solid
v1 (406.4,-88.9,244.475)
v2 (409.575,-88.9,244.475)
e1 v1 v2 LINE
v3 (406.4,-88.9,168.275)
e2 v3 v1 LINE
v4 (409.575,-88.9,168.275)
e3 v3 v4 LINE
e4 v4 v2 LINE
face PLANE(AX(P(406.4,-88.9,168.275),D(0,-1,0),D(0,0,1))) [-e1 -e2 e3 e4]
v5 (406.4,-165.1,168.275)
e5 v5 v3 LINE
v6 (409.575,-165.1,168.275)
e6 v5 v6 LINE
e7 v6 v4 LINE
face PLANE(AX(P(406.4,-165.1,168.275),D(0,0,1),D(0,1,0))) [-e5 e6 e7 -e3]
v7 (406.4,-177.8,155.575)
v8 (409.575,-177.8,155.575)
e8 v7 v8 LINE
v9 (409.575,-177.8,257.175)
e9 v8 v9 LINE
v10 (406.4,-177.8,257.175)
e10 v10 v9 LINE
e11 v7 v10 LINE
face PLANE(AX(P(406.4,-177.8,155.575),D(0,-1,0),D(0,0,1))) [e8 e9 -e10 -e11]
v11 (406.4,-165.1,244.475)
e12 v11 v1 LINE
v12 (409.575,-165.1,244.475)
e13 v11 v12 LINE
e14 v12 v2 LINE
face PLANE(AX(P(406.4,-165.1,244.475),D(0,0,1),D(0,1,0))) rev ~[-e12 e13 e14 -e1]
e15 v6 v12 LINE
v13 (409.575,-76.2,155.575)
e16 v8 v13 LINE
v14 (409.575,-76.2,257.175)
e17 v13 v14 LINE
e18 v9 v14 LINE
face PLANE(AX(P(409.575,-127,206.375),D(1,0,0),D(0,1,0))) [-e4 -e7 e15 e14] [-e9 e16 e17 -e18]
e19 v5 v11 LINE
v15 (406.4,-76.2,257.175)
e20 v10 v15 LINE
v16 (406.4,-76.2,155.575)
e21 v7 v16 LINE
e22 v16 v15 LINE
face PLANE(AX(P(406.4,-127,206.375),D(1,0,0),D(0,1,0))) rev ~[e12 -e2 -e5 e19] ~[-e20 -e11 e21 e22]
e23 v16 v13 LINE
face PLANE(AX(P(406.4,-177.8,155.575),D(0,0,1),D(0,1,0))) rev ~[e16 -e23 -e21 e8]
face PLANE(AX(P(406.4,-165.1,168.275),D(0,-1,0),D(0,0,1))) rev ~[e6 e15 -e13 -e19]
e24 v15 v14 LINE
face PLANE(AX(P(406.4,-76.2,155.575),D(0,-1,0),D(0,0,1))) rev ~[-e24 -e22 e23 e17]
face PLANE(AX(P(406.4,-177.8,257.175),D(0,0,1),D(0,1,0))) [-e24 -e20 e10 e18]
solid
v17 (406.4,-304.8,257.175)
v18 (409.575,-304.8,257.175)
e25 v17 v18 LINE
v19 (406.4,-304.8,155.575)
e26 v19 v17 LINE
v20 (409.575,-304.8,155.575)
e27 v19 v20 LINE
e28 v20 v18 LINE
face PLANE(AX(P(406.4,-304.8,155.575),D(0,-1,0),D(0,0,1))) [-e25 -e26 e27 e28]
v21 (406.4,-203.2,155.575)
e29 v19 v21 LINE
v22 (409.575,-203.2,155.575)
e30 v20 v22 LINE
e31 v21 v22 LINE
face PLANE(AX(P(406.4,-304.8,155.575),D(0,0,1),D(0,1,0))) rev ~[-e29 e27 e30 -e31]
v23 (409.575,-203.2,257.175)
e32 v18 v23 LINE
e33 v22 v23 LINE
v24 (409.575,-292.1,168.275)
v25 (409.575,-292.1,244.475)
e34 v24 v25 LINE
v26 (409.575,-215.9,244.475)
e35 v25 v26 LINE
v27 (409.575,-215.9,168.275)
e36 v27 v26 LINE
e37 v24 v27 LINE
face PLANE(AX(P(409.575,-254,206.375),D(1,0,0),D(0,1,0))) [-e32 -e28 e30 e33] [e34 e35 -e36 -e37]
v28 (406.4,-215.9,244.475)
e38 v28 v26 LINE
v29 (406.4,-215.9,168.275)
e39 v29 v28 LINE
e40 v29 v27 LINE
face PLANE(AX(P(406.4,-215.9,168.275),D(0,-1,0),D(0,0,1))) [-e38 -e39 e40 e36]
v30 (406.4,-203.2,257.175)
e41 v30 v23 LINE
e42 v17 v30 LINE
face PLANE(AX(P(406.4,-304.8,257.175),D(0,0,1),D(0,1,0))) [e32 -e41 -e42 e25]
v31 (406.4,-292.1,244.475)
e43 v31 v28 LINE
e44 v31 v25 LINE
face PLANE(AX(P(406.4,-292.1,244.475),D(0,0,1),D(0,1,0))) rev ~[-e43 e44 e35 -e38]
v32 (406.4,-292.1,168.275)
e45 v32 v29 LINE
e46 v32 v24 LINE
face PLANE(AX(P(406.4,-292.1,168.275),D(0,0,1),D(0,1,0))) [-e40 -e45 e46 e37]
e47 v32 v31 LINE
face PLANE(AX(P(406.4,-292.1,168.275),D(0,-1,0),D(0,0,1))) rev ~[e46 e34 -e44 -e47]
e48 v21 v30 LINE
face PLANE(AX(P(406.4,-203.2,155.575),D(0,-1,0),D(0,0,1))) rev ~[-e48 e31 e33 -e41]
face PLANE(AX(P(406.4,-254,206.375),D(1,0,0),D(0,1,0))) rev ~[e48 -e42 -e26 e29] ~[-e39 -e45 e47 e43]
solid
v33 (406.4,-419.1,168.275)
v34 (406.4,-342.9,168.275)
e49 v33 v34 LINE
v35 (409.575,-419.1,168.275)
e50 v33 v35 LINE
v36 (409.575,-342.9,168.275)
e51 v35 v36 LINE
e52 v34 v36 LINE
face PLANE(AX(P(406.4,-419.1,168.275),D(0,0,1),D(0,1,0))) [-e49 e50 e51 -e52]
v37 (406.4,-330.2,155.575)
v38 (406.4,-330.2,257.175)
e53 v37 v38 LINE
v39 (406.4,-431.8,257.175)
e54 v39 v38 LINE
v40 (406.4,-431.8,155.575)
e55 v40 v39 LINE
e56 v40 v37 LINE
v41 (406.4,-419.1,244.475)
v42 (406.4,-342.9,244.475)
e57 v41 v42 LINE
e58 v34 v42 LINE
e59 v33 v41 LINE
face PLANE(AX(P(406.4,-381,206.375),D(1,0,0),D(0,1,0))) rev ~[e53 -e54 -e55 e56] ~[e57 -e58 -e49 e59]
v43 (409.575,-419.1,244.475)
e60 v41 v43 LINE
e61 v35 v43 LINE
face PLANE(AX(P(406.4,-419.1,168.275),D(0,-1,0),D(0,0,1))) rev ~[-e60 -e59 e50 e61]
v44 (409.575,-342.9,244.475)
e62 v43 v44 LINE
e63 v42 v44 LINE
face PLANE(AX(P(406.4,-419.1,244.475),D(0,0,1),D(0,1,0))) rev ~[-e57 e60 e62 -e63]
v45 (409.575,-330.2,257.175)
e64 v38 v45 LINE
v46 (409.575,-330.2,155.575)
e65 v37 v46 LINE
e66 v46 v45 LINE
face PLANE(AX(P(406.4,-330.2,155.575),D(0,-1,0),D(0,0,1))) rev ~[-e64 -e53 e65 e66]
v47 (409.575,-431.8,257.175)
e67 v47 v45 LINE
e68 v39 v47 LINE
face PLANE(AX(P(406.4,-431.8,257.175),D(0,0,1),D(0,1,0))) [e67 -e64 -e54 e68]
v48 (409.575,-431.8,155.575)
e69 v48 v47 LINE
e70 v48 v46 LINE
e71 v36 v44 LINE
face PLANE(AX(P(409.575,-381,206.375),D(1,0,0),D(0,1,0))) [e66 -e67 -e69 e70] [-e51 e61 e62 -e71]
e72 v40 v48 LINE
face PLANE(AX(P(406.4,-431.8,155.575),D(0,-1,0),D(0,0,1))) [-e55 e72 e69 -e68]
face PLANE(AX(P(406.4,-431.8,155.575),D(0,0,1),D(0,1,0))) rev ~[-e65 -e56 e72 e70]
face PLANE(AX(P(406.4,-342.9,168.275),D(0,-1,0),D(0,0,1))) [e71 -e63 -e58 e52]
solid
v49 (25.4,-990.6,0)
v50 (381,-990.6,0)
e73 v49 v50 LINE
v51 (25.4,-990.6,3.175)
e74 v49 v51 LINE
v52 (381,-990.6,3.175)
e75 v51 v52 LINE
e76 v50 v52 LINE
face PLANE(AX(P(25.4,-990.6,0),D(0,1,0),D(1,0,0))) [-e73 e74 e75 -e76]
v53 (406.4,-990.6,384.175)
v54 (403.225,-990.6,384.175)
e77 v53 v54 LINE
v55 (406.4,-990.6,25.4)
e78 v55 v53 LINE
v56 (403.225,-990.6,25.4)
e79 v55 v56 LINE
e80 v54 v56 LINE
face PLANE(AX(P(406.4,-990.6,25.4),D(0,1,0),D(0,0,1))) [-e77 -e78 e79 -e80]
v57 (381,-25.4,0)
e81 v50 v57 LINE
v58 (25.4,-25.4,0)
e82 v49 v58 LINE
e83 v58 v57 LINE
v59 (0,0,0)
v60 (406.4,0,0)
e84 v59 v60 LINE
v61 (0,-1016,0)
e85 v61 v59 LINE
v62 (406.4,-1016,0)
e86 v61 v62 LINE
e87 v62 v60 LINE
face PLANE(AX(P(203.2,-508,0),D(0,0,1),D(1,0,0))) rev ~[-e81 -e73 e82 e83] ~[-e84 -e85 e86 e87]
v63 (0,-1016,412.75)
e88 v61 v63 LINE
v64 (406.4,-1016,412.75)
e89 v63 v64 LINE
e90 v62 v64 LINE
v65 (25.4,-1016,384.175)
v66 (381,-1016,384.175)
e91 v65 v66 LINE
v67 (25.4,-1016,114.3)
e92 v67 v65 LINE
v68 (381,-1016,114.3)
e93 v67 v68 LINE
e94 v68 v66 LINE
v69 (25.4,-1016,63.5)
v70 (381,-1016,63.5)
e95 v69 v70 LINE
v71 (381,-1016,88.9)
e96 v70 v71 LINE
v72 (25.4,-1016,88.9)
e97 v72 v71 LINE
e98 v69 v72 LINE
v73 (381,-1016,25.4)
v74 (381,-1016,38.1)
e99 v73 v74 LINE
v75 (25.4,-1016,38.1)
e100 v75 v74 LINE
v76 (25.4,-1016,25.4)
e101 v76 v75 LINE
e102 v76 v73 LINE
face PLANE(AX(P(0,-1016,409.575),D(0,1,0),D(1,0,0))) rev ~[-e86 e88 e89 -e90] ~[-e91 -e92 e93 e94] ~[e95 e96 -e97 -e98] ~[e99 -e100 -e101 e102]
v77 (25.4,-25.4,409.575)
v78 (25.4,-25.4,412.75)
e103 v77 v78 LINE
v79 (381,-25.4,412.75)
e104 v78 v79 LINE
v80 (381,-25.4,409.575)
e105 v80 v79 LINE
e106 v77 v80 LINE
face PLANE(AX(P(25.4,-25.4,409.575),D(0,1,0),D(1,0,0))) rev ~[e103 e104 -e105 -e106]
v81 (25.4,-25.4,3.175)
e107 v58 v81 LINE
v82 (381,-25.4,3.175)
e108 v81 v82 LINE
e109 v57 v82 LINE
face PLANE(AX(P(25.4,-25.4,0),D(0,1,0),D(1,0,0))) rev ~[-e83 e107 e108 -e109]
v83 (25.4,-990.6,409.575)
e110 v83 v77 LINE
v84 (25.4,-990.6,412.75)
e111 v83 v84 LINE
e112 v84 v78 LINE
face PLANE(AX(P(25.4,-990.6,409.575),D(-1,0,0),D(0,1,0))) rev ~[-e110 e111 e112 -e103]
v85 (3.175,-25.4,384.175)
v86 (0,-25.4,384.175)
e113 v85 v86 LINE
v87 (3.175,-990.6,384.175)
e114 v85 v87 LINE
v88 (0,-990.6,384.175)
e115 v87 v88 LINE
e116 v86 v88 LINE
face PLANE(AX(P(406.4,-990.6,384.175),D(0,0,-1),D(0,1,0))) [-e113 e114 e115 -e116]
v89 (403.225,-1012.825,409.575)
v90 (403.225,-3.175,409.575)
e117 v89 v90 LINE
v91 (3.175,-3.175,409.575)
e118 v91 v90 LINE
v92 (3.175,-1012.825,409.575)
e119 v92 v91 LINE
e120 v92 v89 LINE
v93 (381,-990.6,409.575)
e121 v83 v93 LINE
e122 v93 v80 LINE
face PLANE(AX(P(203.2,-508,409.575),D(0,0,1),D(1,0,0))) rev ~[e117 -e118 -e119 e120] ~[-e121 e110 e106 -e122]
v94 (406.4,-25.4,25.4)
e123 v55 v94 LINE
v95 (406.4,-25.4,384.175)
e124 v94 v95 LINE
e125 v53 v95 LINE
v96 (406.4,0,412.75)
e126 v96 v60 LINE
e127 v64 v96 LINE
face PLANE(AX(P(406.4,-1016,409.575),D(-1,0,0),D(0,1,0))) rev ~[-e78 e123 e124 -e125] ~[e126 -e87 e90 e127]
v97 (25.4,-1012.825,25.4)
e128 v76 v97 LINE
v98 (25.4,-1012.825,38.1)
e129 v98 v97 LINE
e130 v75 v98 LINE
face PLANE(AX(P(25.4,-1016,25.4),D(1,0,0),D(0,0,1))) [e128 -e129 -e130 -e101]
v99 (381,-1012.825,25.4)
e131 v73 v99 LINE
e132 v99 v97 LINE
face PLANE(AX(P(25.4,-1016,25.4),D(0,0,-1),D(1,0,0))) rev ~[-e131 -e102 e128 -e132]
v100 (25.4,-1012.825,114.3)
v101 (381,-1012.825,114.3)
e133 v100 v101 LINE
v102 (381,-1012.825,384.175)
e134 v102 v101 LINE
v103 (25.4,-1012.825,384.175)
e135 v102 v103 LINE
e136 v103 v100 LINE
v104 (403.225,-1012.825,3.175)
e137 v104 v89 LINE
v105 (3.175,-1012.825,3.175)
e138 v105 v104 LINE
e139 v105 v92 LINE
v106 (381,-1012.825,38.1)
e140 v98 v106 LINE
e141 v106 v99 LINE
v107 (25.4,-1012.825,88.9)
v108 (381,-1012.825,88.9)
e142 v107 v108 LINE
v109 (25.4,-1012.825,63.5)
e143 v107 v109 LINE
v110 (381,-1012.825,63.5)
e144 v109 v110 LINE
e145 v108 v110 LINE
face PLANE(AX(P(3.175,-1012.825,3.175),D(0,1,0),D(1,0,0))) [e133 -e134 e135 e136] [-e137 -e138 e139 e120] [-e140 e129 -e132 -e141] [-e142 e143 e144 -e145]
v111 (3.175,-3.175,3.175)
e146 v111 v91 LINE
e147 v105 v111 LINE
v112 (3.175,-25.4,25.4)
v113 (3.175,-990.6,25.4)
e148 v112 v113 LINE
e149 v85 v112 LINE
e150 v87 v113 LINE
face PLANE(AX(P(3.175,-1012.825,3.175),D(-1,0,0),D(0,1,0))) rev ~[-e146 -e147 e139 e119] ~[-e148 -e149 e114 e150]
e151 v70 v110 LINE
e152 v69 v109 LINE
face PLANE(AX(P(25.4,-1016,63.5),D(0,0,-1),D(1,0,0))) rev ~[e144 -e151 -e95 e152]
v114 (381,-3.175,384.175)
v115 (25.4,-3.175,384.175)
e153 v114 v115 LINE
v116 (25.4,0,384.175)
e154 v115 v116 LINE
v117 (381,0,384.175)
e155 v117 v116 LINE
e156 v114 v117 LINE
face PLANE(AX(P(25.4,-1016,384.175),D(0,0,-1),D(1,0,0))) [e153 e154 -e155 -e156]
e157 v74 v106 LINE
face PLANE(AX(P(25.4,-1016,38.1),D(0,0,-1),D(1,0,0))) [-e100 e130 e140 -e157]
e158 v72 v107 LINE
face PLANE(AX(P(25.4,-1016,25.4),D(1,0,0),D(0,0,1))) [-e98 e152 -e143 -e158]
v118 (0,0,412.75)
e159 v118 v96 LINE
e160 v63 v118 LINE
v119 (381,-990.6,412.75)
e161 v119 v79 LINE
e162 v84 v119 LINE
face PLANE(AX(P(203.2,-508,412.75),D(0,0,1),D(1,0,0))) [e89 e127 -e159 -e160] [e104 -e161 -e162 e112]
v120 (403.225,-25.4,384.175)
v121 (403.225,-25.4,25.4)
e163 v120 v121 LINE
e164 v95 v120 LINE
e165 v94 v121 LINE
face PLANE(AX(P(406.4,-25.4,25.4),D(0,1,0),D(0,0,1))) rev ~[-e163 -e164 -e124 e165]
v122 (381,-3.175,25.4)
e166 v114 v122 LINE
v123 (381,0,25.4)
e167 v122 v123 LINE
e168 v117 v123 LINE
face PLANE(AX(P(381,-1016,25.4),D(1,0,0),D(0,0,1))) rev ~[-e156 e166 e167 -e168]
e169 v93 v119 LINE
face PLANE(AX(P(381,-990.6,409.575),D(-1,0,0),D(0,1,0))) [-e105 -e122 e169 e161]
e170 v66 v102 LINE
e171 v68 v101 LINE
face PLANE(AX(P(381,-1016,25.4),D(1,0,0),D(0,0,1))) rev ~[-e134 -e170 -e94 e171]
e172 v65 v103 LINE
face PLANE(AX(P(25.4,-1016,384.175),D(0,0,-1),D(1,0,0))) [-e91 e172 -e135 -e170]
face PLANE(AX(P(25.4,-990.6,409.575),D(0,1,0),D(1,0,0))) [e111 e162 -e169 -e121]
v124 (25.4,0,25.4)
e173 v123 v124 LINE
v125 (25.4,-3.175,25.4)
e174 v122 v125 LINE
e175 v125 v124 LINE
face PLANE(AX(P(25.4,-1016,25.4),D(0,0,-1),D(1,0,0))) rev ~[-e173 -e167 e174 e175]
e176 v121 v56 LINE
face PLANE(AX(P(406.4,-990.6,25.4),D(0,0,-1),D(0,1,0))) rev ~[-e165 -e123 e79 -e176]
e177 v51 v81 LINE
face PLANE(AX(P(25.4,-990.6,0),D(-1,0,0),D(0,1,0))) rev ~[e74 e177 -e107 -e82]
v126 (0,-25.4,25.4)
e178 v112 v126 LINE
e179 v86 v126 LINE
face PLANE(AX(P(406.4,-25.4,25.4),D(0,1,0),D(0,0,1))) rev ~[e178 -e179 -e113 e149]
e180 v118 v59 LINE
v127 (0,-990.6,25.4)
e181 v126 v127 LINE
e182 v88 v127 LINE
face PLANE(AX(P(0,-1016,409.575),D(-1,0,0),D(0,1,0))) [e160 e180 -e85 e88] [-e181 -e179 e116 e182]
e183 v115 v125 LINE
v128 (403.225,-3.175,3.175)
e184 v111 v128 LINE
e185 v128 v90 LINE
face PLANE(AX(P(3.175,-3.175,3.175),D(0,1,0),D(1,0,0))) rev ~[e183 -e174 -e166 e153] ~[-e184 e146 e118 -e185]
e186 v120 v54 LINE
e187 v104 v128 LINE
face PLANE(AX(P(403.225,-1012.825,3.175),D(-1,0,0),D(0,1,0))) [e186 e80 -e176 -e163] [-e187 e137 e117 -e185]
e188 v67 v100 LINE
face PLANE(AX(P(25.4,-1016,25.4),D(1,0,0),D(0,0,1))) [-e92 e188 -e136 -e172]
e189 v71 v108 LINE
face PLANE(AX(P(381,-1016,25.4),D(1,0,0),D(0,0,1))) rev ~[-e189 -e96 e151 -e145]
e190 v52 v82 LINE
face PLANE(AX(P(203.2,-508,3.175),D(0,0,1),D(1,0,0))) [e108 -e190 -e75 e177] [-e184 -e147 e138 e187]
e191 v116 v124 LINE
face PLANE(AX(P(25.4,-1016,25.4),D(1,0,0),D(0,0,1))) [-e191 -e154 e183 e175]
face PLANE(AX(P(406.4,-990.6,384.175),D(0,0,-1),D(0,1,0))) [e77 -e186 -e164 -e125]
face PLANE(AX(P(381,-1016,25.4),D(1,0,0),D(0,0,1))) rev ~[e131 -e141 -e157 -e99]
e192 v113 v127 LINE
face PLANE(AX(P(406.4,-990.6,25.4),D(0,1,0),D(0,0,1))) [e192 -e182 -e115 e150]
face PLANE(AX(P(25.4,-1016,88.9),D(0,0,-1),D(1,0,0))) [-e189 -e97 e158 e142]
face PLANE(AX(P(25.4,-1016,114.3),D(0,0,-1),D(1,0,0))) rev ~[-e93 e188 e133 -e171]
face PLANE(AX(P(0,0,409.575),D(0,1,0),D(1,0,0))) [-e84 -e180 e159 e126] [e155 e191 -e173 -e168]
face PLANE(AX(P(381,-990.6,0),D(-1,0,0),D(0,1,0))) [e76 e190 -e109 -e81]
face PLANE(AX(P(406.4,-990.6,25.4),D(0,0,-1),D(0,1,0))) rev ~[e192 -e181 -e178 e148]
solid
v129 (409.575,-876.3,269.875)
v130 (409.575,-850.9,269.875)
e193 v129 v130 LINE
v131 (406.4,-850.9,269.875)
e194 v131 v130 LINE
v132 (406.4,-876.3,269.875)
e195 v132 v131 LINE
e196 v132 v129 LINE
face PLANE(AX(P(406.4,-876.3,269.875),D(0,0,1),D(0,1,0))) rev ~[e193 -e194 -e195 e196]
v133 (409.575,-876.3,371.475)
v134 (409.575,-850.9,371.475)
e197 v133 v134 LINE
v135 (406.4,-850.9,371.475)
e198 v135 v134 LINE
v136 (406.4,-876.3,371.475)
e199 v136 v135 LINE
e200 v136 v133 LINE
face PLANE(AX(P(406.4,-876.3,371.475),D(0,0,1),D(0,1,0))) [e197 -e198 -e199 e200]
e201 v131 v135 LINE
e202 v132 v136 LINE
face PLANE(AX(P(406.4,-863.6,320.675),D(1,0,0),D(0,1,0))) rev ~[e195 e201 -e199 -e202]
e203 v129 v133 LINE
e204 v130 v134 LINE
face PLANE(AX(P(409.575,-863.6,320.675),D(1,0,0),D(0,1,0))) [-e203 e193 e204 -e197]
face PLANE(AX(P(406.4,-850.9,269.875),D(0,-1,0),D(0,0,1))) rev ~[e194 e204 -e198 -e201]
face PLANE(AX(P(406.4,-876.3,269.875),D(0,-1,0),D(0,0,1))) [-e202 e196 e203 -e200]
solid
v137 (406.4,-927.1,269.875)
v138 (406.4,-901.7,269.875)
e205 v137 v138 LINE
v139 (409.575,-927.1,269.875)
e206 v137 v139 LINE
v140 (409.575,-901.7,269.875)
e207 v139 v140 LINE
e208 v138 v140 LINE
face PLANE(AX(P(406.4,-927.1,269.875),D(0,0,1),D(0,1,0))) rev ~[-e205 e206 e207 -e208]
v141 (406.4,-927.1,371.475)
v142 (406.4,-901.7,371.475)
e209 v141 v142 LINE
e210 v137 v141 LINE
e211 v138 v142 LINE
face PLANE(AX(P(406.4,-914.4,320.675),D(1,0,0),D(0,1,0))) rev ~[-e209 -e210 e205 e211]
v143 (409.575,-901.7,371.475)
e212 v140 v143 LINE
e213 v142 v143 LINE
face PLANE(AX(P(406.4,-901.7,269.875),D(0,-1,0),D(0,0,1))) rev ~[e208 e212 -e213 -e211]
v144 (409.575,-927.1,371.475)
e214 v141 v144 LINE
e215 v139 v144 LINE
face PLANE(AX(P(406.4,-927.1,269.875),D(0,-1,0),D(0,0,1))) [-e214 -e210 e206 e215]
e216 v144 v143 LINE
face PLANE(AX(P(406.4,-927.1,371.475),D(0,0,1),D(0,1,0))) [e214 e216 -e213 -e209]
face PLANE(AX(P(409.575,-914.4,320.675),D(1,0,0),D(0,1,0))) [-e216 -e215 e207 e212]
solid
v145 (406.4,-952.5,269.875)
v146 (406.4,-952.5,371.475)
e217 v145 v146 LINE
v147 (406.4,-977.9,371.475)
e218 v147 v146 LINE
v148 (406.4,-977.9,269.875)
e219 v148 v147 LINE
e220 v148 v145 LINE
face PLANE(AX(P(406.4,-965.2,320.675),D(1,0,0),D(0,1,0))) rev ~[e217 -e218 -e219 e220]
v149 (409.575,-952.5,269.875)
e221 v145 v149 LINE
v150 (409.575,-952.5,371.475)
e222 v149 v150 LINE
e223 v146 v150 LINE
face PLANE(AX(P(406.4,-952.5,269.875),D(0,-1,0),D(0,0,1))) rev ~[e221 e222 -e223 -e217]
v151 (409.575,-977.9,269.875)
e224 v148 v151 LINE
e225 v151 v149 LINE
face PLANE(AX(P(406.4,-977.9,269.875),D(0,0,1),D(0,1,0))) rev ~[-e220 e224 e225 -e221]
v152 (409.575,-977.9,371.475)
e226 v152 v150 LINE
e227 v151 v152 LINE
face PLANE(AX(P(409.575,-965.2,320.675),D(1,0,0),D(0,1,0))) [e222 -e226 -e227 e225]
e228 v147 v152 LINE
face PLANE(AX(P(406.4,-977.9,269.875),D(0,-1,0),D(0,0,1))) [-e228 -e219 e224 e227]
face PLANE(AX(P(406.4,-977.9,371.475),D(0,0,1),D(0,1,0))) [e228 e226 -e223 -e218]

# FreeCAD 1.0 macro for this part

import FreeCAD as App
import Part
import Sketcher
Q = App.Units.Quantity

doc = App.newDocument("Part")
params = doc.addObject("Spreadsheet::Sheet", "Params")
for row, (alias, value) in enumerate([
    ("sketch1_width", "16 in"),
    ("sketch1_width2", "14 in"),
    ("sketch1_height", "40 in"),
    ("sketch1_height2", "38 in"),
    ("pad1_length", "0.125 in"),
    ("sketch2_width", "16 in"),
    ("sketch2_height", "40 in"),
    ("sketch2_width2", "15.75 in"),
    ("sketch2_height2", "39.75 in"),
    ("pad2_length", "16 in"),
    ("sketch3_width", "38 in"),
    ("sketch3_height", "14.125 in"),
    ("sketch4_width", "14 in"),
    ("sketch4_height", "14.125 in"),
    ("sketch5_width", "16 in"),
    ("sketch5_width2", "14 in"),
    ("sketch5_height", "40 in"),
    ("sketch5_height2", "38 in"),
    ("pad3_length", "0.125 in"),
    ("sketch6_width", "14 in"),
    ("sketch6_height", "1 in"),
    ("pad4_length", "0.125 in"),
    ("sketch7_width", "4 in"),
    ("sketch7_width2", "3 in"),
    ("pad5_length", "0.125 in"),
    ("sketch8_width", "4 in"),
    ("sketch8_width2", "3 in"),
    ("pad6_length", "0.125 in"),
    ("sketch9_width", "4 in"),
    ("sketch9_width2", "3 in"),
    ("pad7_length", "0.125 in"),
    ("sketch10_width", "1 in"),
    ("sketch10_height", "4 in"),
    ("pad8_length", "0.125 in"),
    ("sketch11_width", "1 in"),
    ("sketch11_height", "4 in"),
    ("pad9_length", "0.125 in"),
    ("sketch12_width", "1 in"),
    ("sketch12_height", "4 in"),
    ("pad10_length", "0.125 in"),
], start=1):
    params.set(f"A{row}", alias)
    params.set(f"B{row}", "=" + value)
    params.setAlias(f"B{row}", alias)

body = doc.addObject("PartDesign::Body", "Body")

sketch1 = body.newObject("Sketcher::SketchObject", "Sketch")
sketch1.AttachmentSupport = (doc.getObject("XY_Plane"), [""])
sketch1.MapMode = "FlatFace"
sketch1.addGeometry([
    Part.LineSegment(App.Vector(0, 0, 0), App.Vector(0, -1016, 0)),
    Part.LineSegment(App.Vector(0, -1016, 0), App.Vector(406, -1016, 0)),
    Part.LineSegment(App.Vector(406, -1016, 0), App.Vector(406, 0, 0)),
    Part.LineSegment(App.Vector(406, 0, 0), App.Vector(0, 0, 0)),
    Part.LineSegment(App.Vector(381, -991, 0), App.Vector(25, -991, 0)),
    Part.LineSegment(App.Vector(25, -991, 0), App.Vector(25, -25, 0)),
    Part.LineSegment(App.Vector(25, -25, 0), App.Vector(381, -25, 0)),
    Part.LineSegment(App.Vector(381, -25, 0), App.Vector(381, -991, 0)),
], False)
sketch1.addConstraint([
    Sketcher.Constraint("Coincident", 0, 2, 1, 1),
    Sketcher.Constraint("Coincident", 1, 2, 2, 1),
    Sketcher.Constraint("Coincident", 2, 2, 3, 1),
    Sketcher.Constraint("Coincident", 3, 2, 0, 1),
    Sketcher.Constraint("Coincident", 4, 2, 5, 1),
    Sketcher.Constraint("Coincident", 5, 2, 6, 1),
    Sketcher.Constraint("Coincident", 6, 2, 7, 1),
    Sketcher.Constraint("Coincident", 7, 2, 4, 1),
    Sketcher.Constraint("Vertical", 0),
    Sketcher.Constraint("Horizontal", 1),
    Sketcher.Constraint("Vertical", 2),
    Sketcher.Constraint("Horizontal", 3),
    Sketcher.Constraint("Horizontal", 4),
    Sketcher.Constraint("Vertical", 5),
    Sketcher.Constraint("Horizontal", 6),
    Sketcher.Constraint("Vertical", 7),
    Sketcher.Constraint("Coincident", 3, 2, -1, 1),
    Sketcher.Constraint("DistanceX", 1, 1, 1, 2, Q("16 in")),
    Sketcher.Constraint("DistanceX", 4, 2, 4, 1, Q("14 in")),
    Sketcher.Constraint("DistanceY", 0, 2, 0, 1, Q("40 in")),
    Sketcher.Constraint("DistanceY", 5, 1, 5, 2, Q("38 in")),
    Sketcher.Constraint("DistanceX", -1, 1, 4, 2, Q("1 in")),
    Sketcher.Constraint("DistanceY", 4, 2, -1, 1, Q("39 in")),
])
sketch1.setExpression("Constraints[17]", "Params.sketch1_width")
sketch1.setExpression("Constraints[18]", "Params.sketch1_width2")
sketch1.setExpression("Constraints[19]", "Params.sketch1_height")
sketch1.setExpression("Constraints[20]", "Params.sketch1_height2")
pad1 = body.newObject("PartDesign::Pad", "Pad")
pad1.Profile = sketch1
pad1.setExpression("Length", "Params.pad1_length")

sketch2 = body.newObject("Sketcher::SketchObject", "Sketch001")
sketch2.AttachmentSupport = (doc.getObject("XY_Plane"), [""])
sketch2.MapMode = "FlatFace"
sketch2.AttachmentOffset = App.Placement(App.Vector(0, 0, 0.125 * 25.4), App.Rotation())
sketch2.addGeometry([
    Part.LineSegment(App.Vector(0, 0, 0), App.Vector(0, -1016, 0)),
    Part.LineSegment(App.Vector(0, -1016, 0), App.Vector(406, -1016, 0)),
    Part.LineSegment(App.Vector(406, -1016, 0), App.Vector(406, 0, 0)),
    Part.LineSegment(App.Vector(406, 0, 0), App.Vector(0, 0, 0)),
    Part.LineSegment(App.Vector(403, -1013, 0), App.Vector(3, -1013, 0)),
    Part.LineSegment(App.Vector(3, -1013, 0), App.Vector(3, -3, 0)),
    Part.LineSegment(App.Vector(3, -3, 0), App.Vector(403, -3, 0)),
    Part.LineSegment(App.Vector(403, -3, 0), App.Vector(403, -1013, 0)),
], False)
sketch2.addConstraint([
    Sketcher.Constraint("Coincident", 0, 2, 1, 1),
    Sketcher.Constraint("Coincident", 1, 2, 2, 1),
    Sketcher.Constraint("Coincident", 2, 2, 3, 1),
    Sketcher.Constraint("Coincident", 3, 2, 0, 1),
    Sketcher.Constraint("Coincident", 4, 2, 5, 1),
    Sketcher.Constraint("Coincident", 5, 2, 6, 1),
    Sketcher.Constraint("Coincident", 6, 2, 7, 1),
    Sketcher.Constraint("Coincident", 7, 2, 4, 1),
    Sketcher.Constraint("Vertical", 0),
    Sketcher.Constraint("Horizontal", 1),
    Sketcher.Constraint("Vertical", 2),
    Sketcher.Constraint("Horizontal", 3),
    Sketcher.Constraint("Horizontal", 4),
    Sketcher.Constraint("Vertical", 5),
    Sketcher.Constraint("Horizontal", 6),
    Sketcher.Constraint("Vertical", 7),
    Sketcher.Constraint("Coincident", 3, 2, -1, 1),
    Sketcher.Constraint("DistanceX", 1, 1, 1, 2, Q("16 in")),
    Sketcher.Constraint("DistanceY", 0, 2, 0, 1, Q("40 in")),
    Sketcher.Constraint("DistanceX", 4, 2, 4, 1, Q("15.75 in")),
    Sketcher.Constraint("DistanceY", 5, 1, 5, 2, Q("39.75 in")),
    Sketcher.Constraint("DistanceX", -1, 1, 4, 2, Q("0.125 in")),
    Sketcher.Constraint("DistanceY", 4, 2, -1, 1, Q("39.875 in")),
])
sketch2.setExpression("Constraints[17]", "Params.sketch2_width")
sketch2.setExpression("Constraints[18]", "Params.sketch2_height")
sketch2.setExpression("Constraints[19]", "Params.sketch2_width2")
sketch2.setExpression("Constraints[20]", "Params.sketch2_height2")
pad2 = body.newObject("PartDesign::Pad", "Pad001")
pad2.Profile = sketch2
pad2.setExpression("Length", "Params.pad2_length")

sketch3 = body.newObject("Sketcher::SketchObject", "Sketch002")
sketch3.AttachmentSupport = (doc.getObject("YZ_Plane"), [""])
sketch3.MapMode = "FlatFace"
sketch3.AttachmentOffset = App.Placement(App.Vector(0, 0, 16 * 25.4), App.Rotation())
sketch3.addGeometry([
    Part.LineSegment(App.Vector(-991, 384, 0), App.Vector(-991, 25, 0)),
    Part.LineSegment(App.Vector(-991, 25, 0), App.Vector(-25, 25, 0)),
    Part.LineSegment(App.Vector(-25, 25, 0), App.Vector(-25, 384, 0)),
    Part.LineSegment(App.Vector(-25, 384, 0), App.Vector(-991, 384, 0)),
], False)
sketch3.addConstraint([
    Sketcher.Constraint("Coincident", 0, 2, 1, 1),
    Sketcher.Constraint("Coincident", 1, 2, 2, 1),
    Sketcher.Constraint("Coincident", 2, 2, 3, 1),
    Sketcher.Constraint("Coincident", 3, 2, 0, 1),
    Sketcher.Constraint("Vertical", 0),
    Sketcher.Constraint("Horizontal", 1),
    Sketcher.Constraint("Vertical", 2),
    Sketcher.Constraint("Horizontal", 3),
    Sketcher.Constraint("DistanceX", 1, 1, 1, 2, Q("38 in")),
    Sketcher.Constraint("DistanceX", 0, 2, -1, 1, Q("39 in")),
    Sketcher.Constraint("DistanceY", -1, 1, 0, 2, Q("1 in")),
    Sketcher.Constraint("DistanceY", 0, 2, 0, 1, Q("14.125 in")),
])
sketch3.setExpression("Constraints[8]", "Params.sketch3_width")
sketch3.setExpression("Constraints[11]", "Params.sketch3_height")
pocket1 = body.newObject("PartDesign::Pocket", "Pocket")
pocket1.Profile = sketch3
pocket1.Type = "ThroughAll"

sketch4 = body.newObject("Sketcher::SketchObject", "Sketch003")
sketch4.AttachmentSupport = (doc.getObject("XZ_Plane"), [""])
sketch4.MapMode = "FlatFace"
sketch4.AttachmentOffset = App.Placement(App.Vector(0, 0, 40 * 25.4), App.Rotation())
sketch4.addGeometry([
    Part.LineSegment(App.Vector(25, 384, 0), App.Vector(25, 25, 0)),
    Part.LineSegment(App.Vector(25, 25, 0), App.Vector(381, 25, 0)),
    Part.LineSegment(App.Vector(381, 25, 0), App.Vector(381, 384, 0)),
    Part.LineSegment(App.Vector(381, 384, 0), App.Vector(25, 384, 0)),
], False)
sketch4.addConstraint([
    Sketcher.Constraint("Coincident", 0, 2, 1, 1),
    Sketcher.Constraint("Coincident", 1, 2, 2, 1),
    Sketcher.Constraint("Coincident", 2, 2, 3, 1),
    Sketcher.Constraint("Coincident", 3, 2, 0, 1),
    Sketcher.Constraint("Vertical", 0),
    Sketcher.Constraint("Horizontal", 1),
    Sketcher.Constraint("Vertical", 2),
    Sketcher.Constraint("Horizontal", 3),
    Sketcher.Constraint("DistanceX", 1, 1, 1, 2, Q("14 in")),
    Sketcher.Constraint("DistanceX", -1, 1, 0, 2, Q("1 in")),
    Sketcher.Constraint("DistanceY", -1, 1, 0, 2, Q("1 in")),
    Sketcher.Constraint("DistanceY", 0, 2, 0, 1, Q("14.125 in")),
])
sketch4.setExpression("Constraints[8]", "Params.sketch4_width")
sketch4.setExpression("Constraints[11]", "Params.sketch4_height")
pocket2 = body.newObject("PartDesign::Pocket", "Pocket001")
pocket2.Profile = sketch4
pocket2.Type = "ThroughAll"

sketch5 = body.newObject("Sketcher::SketchObject", "Sketch004")
sketch5.AttachmentSupport = (doc.getObject("XY_Plane"), [""])
sketch5.MapMode = "FlatFace"
sketch5.AttachmentOffset = App.Placement(App.Vector(0, 0, 16.125 * 25.4), App.Rotation())
sketch5.addGeometry([
    Part.LineSegment(App.Vector(0, 0, 0), App.Vector(0, -1016, 0)),
    Part.LineSegment(App.Vector(0, -1016, 0), App.Vector(406, -1016, 0)),
    Part.LineSegment(App.Vector(406, -1016, 0), App.Vector(406, 0, 0)),
    Part.LineSegment(App.Vector(406, 0, 0), App.Vector(0, 0, 0)),
    Part.LineSegment(App.Vector(381, -991, 0), App.Vector(25, -991, 0)),
    Part.LineSegment(App.Vector(25, -991, 0), App.Vector(25, -25, 0)),
    Part.LineSegment(App.Vector(25, -25, 0), App.Vector(381, -25, 0)),
    Part.LineSegment(App.Vector(381, -25, 0), App.Vector(381, -991, 0)),
], False)
sketch5.addConstraint([
    Sketcher.Constraint("Coincident", 0, 2, 1, 1),
    Sketcher.Constraint("Coincident", 1, 2, 2, 1),
    Sketcher.Constraint("Coincident", 2, 2, 3, 1),
    Sketcher.Constraint("Coincident", 3, 2, 0, 1),
    Sketcher.Constraint("Coincident", 4, 2, 5, 1),
    Sketcher.Constraint("Coincident", 5, 2, 6, 1),
    Sketcher.Constraint("Coincident", 6, 2, 7, 1),
    Sketcher.Constraint("Coincident", 7, 2, 4, 1),
    Sketcher.Constraint("Vertical", 0),
    Sketcher.Constraint("Horizontal", 1),
    Sketcher.Constraint("Vertical", 2),
    Sketcher.Constraint("Horizontal", 3),
    Sketcher.Constraint("Horizontal", 4),
    Sketcher.Constraint("Vertical", 5),
    Sketcher.Constraint("Horizontal", 6),
    Sketcher.Constraint("Vertical", 7),
    Sketcher.Constraint("Coincident", 3, 2, -1, 1),
    Sketcher.Constraint("DistanceX", 1, 1, 1, 2, Q("16 in")),
    Sketcher.Constraint("DistanceX", 4, 2, 4, 1, Q("14 in")),
    Sketcher.Constraint("DistanceY", 0, 2, 0, 1, Q("40 in")),
    Sketcher.Constraint("DistanceY", 5, 1, 5, 2, Q("38 in")),
    Sketcher.Constraint("DistanceX", -1, 1, 4, 2, Q("1 in")),
    Sketcher.Constraint("DistanceY", 4, 2, -1, 1, Q("39 in")),
])
sketch5.setExpression("Constraints[17]", "Params.sketch5_width")
sketch5.setExpression("Constraints[18]", "Params.sketch5_width2")
sketch5.setExpression("Constraints[19]", "Params.sketch5_height")
sketch5.setExpression("Constraints[20]", "Params.sketch5_height2")
pad3 = body.newObject("PartDesign::Pad", "Pad002")
pad3.Profile = sketch5
pad3.setExpression("Length", "Params.pad3_length")

sketch6 = body.newObject("Sketcher::SketchObject", "Sketch005")
sketch6.AttachmentSupport = (doc.getObject("XZ_Plane"), [""])
sketch6.MapMode = "FlatFace"
sketch6.AttachmentOffset = App.Placement(App.Vector(0, 0, 40 * 25.4), App.Rotation())
sketch6.addGeometry([
    Part.LineSegment(App.Vector(25, 114, 0), App.Vector(25, 89, 0)),
    Part.LineSegment(App.Vector(25, 89, 0), App.Vector(381, 89, 0)),
    Part.LineSegment(App.Vector(381, 89, 0), App.Vector(381, 114, 0)),
    Part.LineSegment(App.Vector(381, 114, 0), App.Vector(25, 114, 0)),
    Part.LineSegment(App.Vector(25, 64, 0), App.Vector(25, 38, 0)),
    Part.LineSegment(App.Vector(25, 38, 0), App.Vector(381, 38, 0)),
    Part.LineSegment(App.Vector(381, 38, 0), App.Vector(381, 64, 0)),
    Part.LineSegment(App.Vector(381, 64, 0), App.Vector(25, 64, 0)),
], False)
sketch6.addConstraint([
    Sketcher.Constraint("Coincident", 0, 2, 1, 1),
    Sketcher.Constraint("Coincident", 1, 2, 2, 1),
    Sketcher.Constraint("Coincident", 2, 2, 3, 1),
    Sketcher.Constraint("Coincident", 3, 2, 0, 1),
    Sketcher.Constraint("Coincident", 4, 2, 5, 1),
    Sketcher.Constraint("Coincident", 5, 2, 6, 1),
    Sketcher.Constraint("Coincident", 6, 2, 7, 1),
    Sketcher.Constraint("Coincident", 7, 2, 4, 1),
    Sketcher.Constraint("Vertical", 0),
    Sketcher.Constraint("Horizontal", 1),
    Sketcher.Constraint("Vertical", 2),
    Sketcher.Constraint("Horizontal", 3),
    Sketcher.Constraint("Vertical", 4),
    Sketcher.Constraint("Horizontal", 5),
    Sketcher.Constraint("Vertical", 6),
    Sketcher.Constraint("Horizontal", 7),
    Sketcher.Constraint("Vertical", 3, 2, 4, 2),
    Sketcher.Constraint("Vertical", 2, 2, 5, 2),
    Sketcher.Constraint("Equal", 2, 4),
    Sketcher.Constraint("DistanceX", 1, 1, 1, 2, Q("14 in")),
    Sketcher.Constraint("DistanceY", 0, 2, 0, 1, Q("1 in")),
    Sketcher.Constraint("DistanceX", -1, 1, 0, 2, Q("1 in")),
    Sketcher.Constraint("DistanceY", 4, 2, 0, 2, Q("2 in")),
    Sketcher.Constraint("DistanceY", -1, 1, 0, 2, Q("3.5 in")),
])
sketch6.setExpression("Constraints[19]", "Params.sketch6_width")
sketch6.setExpression("Constraints[20]", "Params.sketch6_height")
pad4 = body.newObject("PartDesign::Pad", "Pad003")
pad4.Profile = sketch6
pad4.setExpression("Length", "Params.pad4_length")
pad4.Reversed = True
body2 = doc.addObject("PartDesign::Body", "Body001")

sketch7 = body2.newObject("Sketcher::SketchObject", "Sketch006")
sketch7.AttachmentSupport = (doc.getObject("YZ_Plane001"), [""])
sketch7.MapMode = "FlatFace"
sketch7.AttachmentOffset = App.Placement(App.Vector(0, 0, 16 * 25.4), App.Rotation())
sketch7.addGeometry([
    Part.LineSegment(App.Vector(-305, 257, 0), App.Vector(-305, 156, 0)),
    Part.LineSegment(App.Vector(-305, 156, 0), App.Vector(-203, 156, 0)),
    Part.LineSegment(App.Vector(-203, 156, 0), App.Vector(-203, 257, 0)),
    Part.LineSegment(App.Vector(-203, 257, 0), App.Vector(-305, 257, 0)),
    Part.LineSegment(App.Vector(-216, 168, 0), App.Vector(-292, 168, 0)),
    Part.LineSegment(App.Vector(-292, 168, 0), App.Vector(-292, 244, 0)),
    Part.LineSegment(App.Vector(-292, 244, 0), App.Vector(-216, 244, 0)),
    Part.LineSegment(App.Vector(-216, 244, 0), App.Vector(-216, 168, 0)),
], False)
sketch7.addConstraint([
    Sketcher.Constraint("Coincident", 0, 2, 1, 1),
    Sketcher.Constraint("Coincident", 1, 2, 2, 1),
    Sketcher.Constraint("Coincident", 2, 2, 3, 1),
    Sketcher.Constraint("Coincident", 3, 2, 0, 1),
    Sketcher.Constraint("Coincident", 4, 2, 5, 1),
    Sketcher.Constraint("Coincident", 5, 2, 6, 1),
    Sketcher.Constraint("Coincident", 6, 2, 7, 1),
    Sketcher.Constraint("Coincident", 7, 2, 4, 1),
    Sketcher.Constraint("Vertical", 0),
    Sketcher.Constraint("Horizontal", 1),
    Sketcher.Constraint("Vertical", 2),
    Sketcher.Constraint("Horizontal", 3),
    Sketcher.Constraint("Horizontal", 4),
    Sketcher.Constraint("Vertical", 5),
    Sketcher.Constraint("Horizontal", 6),
    Sketcher.Constraint("Vertical", 7),
    Sketcher.Constraint("Equal", 3, 0),
    Sketcher.Constraint("Equal", 6, 5),
    Sketcher.Constraint("DistanceX", 1, 1, 1, 2, Q("4 in")),
    Sketcher.Constraint("DistanceX", 4, 2, 4, 1, Q("3 in")),
    Sketcher.Constraint("DistanceX", 0, 2, -1, 1, Q("12 in")),
    Sketcher.Constraint("DistanceX", 4, 2, -1, 1, Q("11.5 in")),
    Sketcher.Constraint("DistanceY", 0, 2, 4, 2, Q("0.5 in")),
    Sketcher.Constraint("DistanceY", -1, 1, 0, 2, Q("6.125 in")),
])
sketch7.setExpression("Constraints[18]", "Params.sketch7_width")
sketch7.setExpression("Constraints[19]", "Params.sketch7_width2")
pad5 = body2.newObject("PartDesign::Pad", "Pad004")
pad5.Profile = sketch7
pad5.setExpression("Length", "Params.pad5_length")
body3 = doc.addObject("PartDesign::Body", "Body002")

sketch8 = body3.newObject("Sketcher::SketchObject", "Sketch007")
sketch8.AttachmentSupport = (doc.getObject("YZ_Plane002"), [""])
sketch8.MapMode = "FlatFace"
sketch8.AttachmentOffset = App.Placement(App.Vector(0, 0, 16 * 25.4), App.Rotation())
sketch8.addGeometry([
    Part.LineSegment(App.Vector(-178, 257, 0), App.Vector(-178, 156, 0)),
    Part.LineSegment(App.Vector(-178, 156, 0), App.Vector(-76, 156, 0)),
    Part.LineSegment(App.Vector(-76, 156, 0), App.Vector(-76, 257, 0)),
    Part.LineSegment(App.Vector(-76, 257, 0), App.Vector(-178, 257, 0)),
    Part.LineSegment(App.Vector(-89, 168, 0), App.Vector(-165, 168, 0)),
    Part.LineSegment(App.Vector(-165, 168, 0), App.Vector(-165, 244, 0)),
    Part.LineSegment(App.Vector(-165, 244, 0), App.Vector(-89, 244, 0)),
    Part.LineSegment(App.Vector(-89, 244, 0), App.Vector(-89, 168, 0)),
], False)
sketch8.addConstraint([
    Sketcher.Constraint("Coincident", 0, 2, 1, 1),
    Sketcher.Constraint("Coincident", 1, 2, 2, 1),
    Sketcher.Constraint("Coincident", 2, 2, 3, 1),
    Sketcher.Constraint("Coincident", 3, 2, 0, 1),
    Sketcher.Constraint("Coincident", 4, 2, 5, 1),
    Sketcher.Constraint("Coincident", 5, 2, 6, 1),
    Sketcher.Constraint("Coincident", 6, 2, 7, 1),
    Sketcher.Constraint("Coincident", 7, 2, 4, 1),
    Sketcher.Constraint("Vertical", 0),
    Sketcher.Constraint("Horizontal", 1),
    Sketcher.Constraint("Vertical", 2),
    Sketcher.Constraint("Horizontal", 3),
    Sketcher.Constraint("Horizontal", 4),
    Sketcher.Constraint("Vertical", 5),
    Sketcher.Constraint("Horizontal", 6),
    Sketcher.Constraint("Vertical", 7),
    Sketcher.Constraint("Equal", 3, 0),
    Sketcher.Constraint("Equal", 6, 5),
    Sketcher.Constraint("DistanceX", 1, 1, 1, 2, Q("4 in")),
    Sketcher.Constraint("DistanceX", 4, 2, 4, 1, Q("3 in")),
    Sketcher.Constraint("DistanceX", 0, 2, -1, 1, Q("7 in")),
    Sketcher.Constraint("DistanceX", 4, 2, -1, 1, Q("6.5 in")),
    Sketcher.Constraint("DistanceY", 0, 2, 4, 2, Q("0.5 in")),
    Sketcher.Constraint("DistanceY", -1, 1, 0, 2, Q("6.125 in")),
])
sketch8.setExpression("Constraints[18]", "Params.sketch8_width")
sketch8.setExpression("Constraints[19]", "Params.sketch8_width2")
pad6 = body3.newObject("PartDesign::Pad", "Pad005")
pad6.Profile = sketch8
pad6.setExpression("Length", "Params.pad6_length")
body4 = doc.addObject("PartDesign::Body", "Body003")

sketch9 = body4.newObject("Sketcher::SketchObject", "Sketch008")
sketch9.AttachmentSupport = (doc.getObject("YZ_Plane003"), [""])
sketch9.MapMode = "FlatFace"
sketch9.AttachmentOffset = App.Placement(App.Vector(0, 0, 16 * 25.4), App.Rotation())
sketch9.addGeometry([
    Part.LineSegment(App.Vector(-432, 257, 0), App.Vector(-432, 156, 0)),
    Part.LineSegment(App.Vector(-432, 156, 0), App.Vector(-330, 156, 0)),
    Part.LineSegment(App.Vector(-330, 156, 0), App.Vector(-330, 257, 0)),
    Part.LineSegment(App.Vector(-330, 257, 0), App.Vector(-432, 257, 0)),
    Part.LineSegment(App.Vector(-343, 168, 0), App.Vector(-419, 168, 0)),
    Part.LineSegment(App.Vector(-419, 168, 0), App.Vector(-419, 244, 0)),
    Part.LineSegment(App.Vector(-419, 244, 0), App.Vector(-343, 244, 0)),
    Part.LineSegment(App.Vector(-343, 244, 0), App.Vector(-343, 168, 0)),
], False)
sketch9.addConstraint([
    Sketcher.Constraint("Coincident", 0, 2, 1, 1),
    Sketcher.Constraint("Coincident", 1, 2, 2, 1),
    Sketcher.Constraint("Coincident", 2, 2, 3, 1),
    Sketcher.Constraint("Coincident", 3, 2, 0, 1),
    Sketcher.Constraint("Coincident", 4, 2, 5, 1),
    Sketcher.Constraint("Coincident", 5, 2, 6, 1),
    Sketcher.Constraint("Coincident", 6, 2, 7, 1),
    Sketcher.Constraint("Coincident", 7, 2, 4, 1),
    Sketcher.Constraint("Vertical", 0),
    Sketcher.Constraint("Horizontal", 1),
    Sketcher.Constraint("Vertical", 2),
    Sketcher.Constraint("Horizontal", 3),
    Sketcher.Constraint("Horizontal", 4),
    Sketcher.Constraint("Vertical", 5),
    Sketcher.Constraint("Horizontal", 6),
    Sketcher.Constraint("Vertical", 7),
    Sketcher.Constraint("Equal", 3, 0),
    Sketcher.Constraint("Equal", 6, 5),
    Sketcher.Constraint("DistanceX", 1, 1, 1, 2, Q("4 in")),
    Sketcher.Constraint("DistanceX", 4, 2, 4, 1, Q("3 in")),
    Sketcher.Constraint("DistanceX", 0, 2, -1, 1, Q("17 in")),
    Sketcher.Constraint("DistanceX", 4, 2, -1, 1, Q("16.5 in")),
    Sketcher.Constraint("DistanceY", 0, 2, 4, 2, Q("0.5 in")),
    Sketcher.Constraint("DistanceY", -1, 1, 0, 2, Q("6.125 in")),
])
sketch9.setExpression("Constraints[18]", "Params.sketch9_width")
sketch9.setExpression("Constraints[19]", "Params.sketch9_width2")
pad7 = body4.newObject("PartDesign::Pad", "Pad006")
pad7.Profile = sketch9
pad7.setExpression("Length", "Params.pad7_length")
body5 = doc.addObject("PartDesign::Body", "Body004")

sketch10 = body5.newObject("Sketcher::SketchObject", "Sketch009")
sketch10.AttachmentSupport = (doc.getObject("YZ_Plane004"), [""])
sketch10.MapMode = "FlatFace"
sketch10.AttachmentOffset = App.Placement(App.Vector(0, 0, 16 * 25.4), App.Rotation())
sketch10.addGeometry([
    Part.LineSegment(App.Vector(-927, 371, 0), App.Vector(-927, 270, 0)),
    Part.LineSegment(App.Vector(-927, 270, 0), App.Vector(-902, 270, 0)),
    Part.LineSegment(App.Vector(-902, 270, 0), App.Vector(-902, 371, 0)),
    Part.LineSegment(App.Vector(-902, 371, 0), App.Vector(-927, 371, 0)),
], False)
sketch10.addConstraint([
    Sketcher.Constraint("Coincident", 0, 2, 1, 1),
    Sketcher.Constraint("Coincident", 1, 2, 2, 1),
    Sketcher.Constraint("Coincident", 2, 2, 3, 1),
    Sketcher.Constraint("Coincident", 3, 2, 0, 1),
    Sketcher.Constraint("Vertical", 0),
    Sketcher.Constraint("Horizontal", 1),
    Sketcher.Constraint("Vertical", 2),
    Sketcher.Constraint("Horizontal", 3),
    Sketcher.Constraint("DistanceX", 1, 1, 1, 2, Q("1 in")),
    Sketcher.Constraint("DistanceY", 0, 2, 0, 1, Q("4 in")),
    Sketcher.Constraint("DistanceX", 0, 2, -1, 1, Q("36.5 in")),
    Sketcher.Constraint("DistanceY", -1, 1, 0, 2, Q("10.625 in")),
])
sketch10.setExpression("Constraints[8]", "Params.sketch10_width")
sketch10.setExpression("Constraints[9]", "Params.sketch10_height")
pad8 = body5.newObject("PartDesign::Pad", "Pad007")
pad8.Profile = sketch10
pad8.setExpression("Length", "Params.pad8_length")
body6 = doc.addObject("PartDesign::Body", "Body005")

sketch11 = body6.newObject("Sketcher::SketchObject", "Sketch010")
sketch11.AttachmentSupport = (doc.getObject("YZ_Plane005"), [""])
sketch11.MapMode = "FlatFace"
sketch11.AttachmentOffset = App.Placement(App.Vector(0, 0, 16 * 25.4), App.Rotation())
sketch11.addGeometry([
    Part.LineSegment(App.Vector(-978, 371, 0), App.Vector(-978, 270, 0)),
    Part.LineSegment(App.Vector(-978, 270, 0), App.Vector(-952, 270, 0)),
    Part.LineSegment(App.Vector(-952, 270, 0), App.Vector(-952, 371, 0)),
    Part.LineSegment(App.Vector(-952, 371, 0), App.Vector(-978, 371, 0)),
], False)
sketch11.addConstraint([
    Sketcher.Constraint("Coincident", 0, 2, 1, 1),
    Sketcher.Constraint("Coincident", 1, 2, 2, 1),
    Sketcher.Constraint("Coincident", 2, 2, 3, 1),
    Sketcher.Constraint("Coincident", 3, 2, 0, 1),
    Sketcher.Constraint("Vertical", 0),
    Sketcher.Constraint("Horizontal", 1),
    Sketcher.Constraint("Vertical", 2),
    Sketcher.Constraint("Horizontal", 3),
    Sketcher.Constraint("DistanceX", 1, 1, 1, 2, Q("1 in")),
    Sketcher.Constraint("DistanceY", 0, 2, 0, 1, Q("4 in")),
    Sketcher.Constraint("DistanceX", 0, 2, -1, 1, Q("38.5 in")),
    Sketcher.Constraint("DistanceY", -1, 1, 0, 2, Q("10.625 in")),
])
sketch11.setExpression("Constraints[8]", "Params.sketch11_width")
sketch11.setExpression("Constraints[9]", "Params.sketch11_height")
pad9 = body6.newObject("PartDesign::Pad", "Pad008")
pad9.Profile = sketch11
pad9.setExpression("Length", "Params.pad9_length")
body7 = doc.addObject("PartDesign::Body", "Body006")

sketch12 = body7.newObject("Sketcher::SketchObject", "Sketch011")
sketch12.AttachmentSupport = (doc.getObject("YZ_Plane006"), [""])
sketch12.MapMode = "FlatFace"
sketch12.AttachmentOffset = App.Placement(App.Vector(0, 0, 16 * 25.4), App.Rotation())
sketch12.addGeometry([
    Part.LineSegment(App.Vector(-876, 371, 0), App.Vector(-876, 270, 0)),
    Part.LineSegment(App.Vector(-876, 270, 0), App.Vector(-851, 270, 0)),
    Part.LineSegment(App.Vector(-851, 270, 0), App.Vector(-851, 371, 0)),
    Part.LineSegment(App.Vector(-851, 371, 0), App.Vector(-876, 371, 0)),
], False)
sketch12.addConstraint([
    Sketcher.Constraint("Coincident", 0, 2, 1, 1),
    Sketcher.Constraint("Coincident", 1, 2, 2, 1),
    Sketcher.Constraint("Coincident", 2, 2, 3, 1),
    Sketcher.Constraint("Coincident", 3, 2, 0, 1),
    Sketcher.Constraint("Vertical", 0),
    Sketcher.Constraint("Horizontal", 1),
    Sketcher.Constraint("Vertical", 2),
    Sketcher.Constraint("Horizontal", 3),
    Sketcher.Constraint("DistanceX", 1, 1, 1, 2, Q("1 in")),
    Sketcher.Constraint("DistanceY", 0, 2, 0, 1, Q("4 in")),
    Sketcher.Constraint("DistanceX", 0, 2, -1, 1, Q("34.5 in")),
    Sketcher.Constraint("DistanceY", -1, 1, 0, 2, Q("10.625 in")),
])
sketch12.setExpression("Constraints[8]", "Params.sketch12_width")
sketch12.setExpression("Constraints[9]", "Params.sketch12_height")
pad10 = body7.newObject("PartDesign::Pad", "Pad009")
pad10.Profile = sketch12
pad10.setExpression("Length", "Params.pad10_length")

doc.recompute()
